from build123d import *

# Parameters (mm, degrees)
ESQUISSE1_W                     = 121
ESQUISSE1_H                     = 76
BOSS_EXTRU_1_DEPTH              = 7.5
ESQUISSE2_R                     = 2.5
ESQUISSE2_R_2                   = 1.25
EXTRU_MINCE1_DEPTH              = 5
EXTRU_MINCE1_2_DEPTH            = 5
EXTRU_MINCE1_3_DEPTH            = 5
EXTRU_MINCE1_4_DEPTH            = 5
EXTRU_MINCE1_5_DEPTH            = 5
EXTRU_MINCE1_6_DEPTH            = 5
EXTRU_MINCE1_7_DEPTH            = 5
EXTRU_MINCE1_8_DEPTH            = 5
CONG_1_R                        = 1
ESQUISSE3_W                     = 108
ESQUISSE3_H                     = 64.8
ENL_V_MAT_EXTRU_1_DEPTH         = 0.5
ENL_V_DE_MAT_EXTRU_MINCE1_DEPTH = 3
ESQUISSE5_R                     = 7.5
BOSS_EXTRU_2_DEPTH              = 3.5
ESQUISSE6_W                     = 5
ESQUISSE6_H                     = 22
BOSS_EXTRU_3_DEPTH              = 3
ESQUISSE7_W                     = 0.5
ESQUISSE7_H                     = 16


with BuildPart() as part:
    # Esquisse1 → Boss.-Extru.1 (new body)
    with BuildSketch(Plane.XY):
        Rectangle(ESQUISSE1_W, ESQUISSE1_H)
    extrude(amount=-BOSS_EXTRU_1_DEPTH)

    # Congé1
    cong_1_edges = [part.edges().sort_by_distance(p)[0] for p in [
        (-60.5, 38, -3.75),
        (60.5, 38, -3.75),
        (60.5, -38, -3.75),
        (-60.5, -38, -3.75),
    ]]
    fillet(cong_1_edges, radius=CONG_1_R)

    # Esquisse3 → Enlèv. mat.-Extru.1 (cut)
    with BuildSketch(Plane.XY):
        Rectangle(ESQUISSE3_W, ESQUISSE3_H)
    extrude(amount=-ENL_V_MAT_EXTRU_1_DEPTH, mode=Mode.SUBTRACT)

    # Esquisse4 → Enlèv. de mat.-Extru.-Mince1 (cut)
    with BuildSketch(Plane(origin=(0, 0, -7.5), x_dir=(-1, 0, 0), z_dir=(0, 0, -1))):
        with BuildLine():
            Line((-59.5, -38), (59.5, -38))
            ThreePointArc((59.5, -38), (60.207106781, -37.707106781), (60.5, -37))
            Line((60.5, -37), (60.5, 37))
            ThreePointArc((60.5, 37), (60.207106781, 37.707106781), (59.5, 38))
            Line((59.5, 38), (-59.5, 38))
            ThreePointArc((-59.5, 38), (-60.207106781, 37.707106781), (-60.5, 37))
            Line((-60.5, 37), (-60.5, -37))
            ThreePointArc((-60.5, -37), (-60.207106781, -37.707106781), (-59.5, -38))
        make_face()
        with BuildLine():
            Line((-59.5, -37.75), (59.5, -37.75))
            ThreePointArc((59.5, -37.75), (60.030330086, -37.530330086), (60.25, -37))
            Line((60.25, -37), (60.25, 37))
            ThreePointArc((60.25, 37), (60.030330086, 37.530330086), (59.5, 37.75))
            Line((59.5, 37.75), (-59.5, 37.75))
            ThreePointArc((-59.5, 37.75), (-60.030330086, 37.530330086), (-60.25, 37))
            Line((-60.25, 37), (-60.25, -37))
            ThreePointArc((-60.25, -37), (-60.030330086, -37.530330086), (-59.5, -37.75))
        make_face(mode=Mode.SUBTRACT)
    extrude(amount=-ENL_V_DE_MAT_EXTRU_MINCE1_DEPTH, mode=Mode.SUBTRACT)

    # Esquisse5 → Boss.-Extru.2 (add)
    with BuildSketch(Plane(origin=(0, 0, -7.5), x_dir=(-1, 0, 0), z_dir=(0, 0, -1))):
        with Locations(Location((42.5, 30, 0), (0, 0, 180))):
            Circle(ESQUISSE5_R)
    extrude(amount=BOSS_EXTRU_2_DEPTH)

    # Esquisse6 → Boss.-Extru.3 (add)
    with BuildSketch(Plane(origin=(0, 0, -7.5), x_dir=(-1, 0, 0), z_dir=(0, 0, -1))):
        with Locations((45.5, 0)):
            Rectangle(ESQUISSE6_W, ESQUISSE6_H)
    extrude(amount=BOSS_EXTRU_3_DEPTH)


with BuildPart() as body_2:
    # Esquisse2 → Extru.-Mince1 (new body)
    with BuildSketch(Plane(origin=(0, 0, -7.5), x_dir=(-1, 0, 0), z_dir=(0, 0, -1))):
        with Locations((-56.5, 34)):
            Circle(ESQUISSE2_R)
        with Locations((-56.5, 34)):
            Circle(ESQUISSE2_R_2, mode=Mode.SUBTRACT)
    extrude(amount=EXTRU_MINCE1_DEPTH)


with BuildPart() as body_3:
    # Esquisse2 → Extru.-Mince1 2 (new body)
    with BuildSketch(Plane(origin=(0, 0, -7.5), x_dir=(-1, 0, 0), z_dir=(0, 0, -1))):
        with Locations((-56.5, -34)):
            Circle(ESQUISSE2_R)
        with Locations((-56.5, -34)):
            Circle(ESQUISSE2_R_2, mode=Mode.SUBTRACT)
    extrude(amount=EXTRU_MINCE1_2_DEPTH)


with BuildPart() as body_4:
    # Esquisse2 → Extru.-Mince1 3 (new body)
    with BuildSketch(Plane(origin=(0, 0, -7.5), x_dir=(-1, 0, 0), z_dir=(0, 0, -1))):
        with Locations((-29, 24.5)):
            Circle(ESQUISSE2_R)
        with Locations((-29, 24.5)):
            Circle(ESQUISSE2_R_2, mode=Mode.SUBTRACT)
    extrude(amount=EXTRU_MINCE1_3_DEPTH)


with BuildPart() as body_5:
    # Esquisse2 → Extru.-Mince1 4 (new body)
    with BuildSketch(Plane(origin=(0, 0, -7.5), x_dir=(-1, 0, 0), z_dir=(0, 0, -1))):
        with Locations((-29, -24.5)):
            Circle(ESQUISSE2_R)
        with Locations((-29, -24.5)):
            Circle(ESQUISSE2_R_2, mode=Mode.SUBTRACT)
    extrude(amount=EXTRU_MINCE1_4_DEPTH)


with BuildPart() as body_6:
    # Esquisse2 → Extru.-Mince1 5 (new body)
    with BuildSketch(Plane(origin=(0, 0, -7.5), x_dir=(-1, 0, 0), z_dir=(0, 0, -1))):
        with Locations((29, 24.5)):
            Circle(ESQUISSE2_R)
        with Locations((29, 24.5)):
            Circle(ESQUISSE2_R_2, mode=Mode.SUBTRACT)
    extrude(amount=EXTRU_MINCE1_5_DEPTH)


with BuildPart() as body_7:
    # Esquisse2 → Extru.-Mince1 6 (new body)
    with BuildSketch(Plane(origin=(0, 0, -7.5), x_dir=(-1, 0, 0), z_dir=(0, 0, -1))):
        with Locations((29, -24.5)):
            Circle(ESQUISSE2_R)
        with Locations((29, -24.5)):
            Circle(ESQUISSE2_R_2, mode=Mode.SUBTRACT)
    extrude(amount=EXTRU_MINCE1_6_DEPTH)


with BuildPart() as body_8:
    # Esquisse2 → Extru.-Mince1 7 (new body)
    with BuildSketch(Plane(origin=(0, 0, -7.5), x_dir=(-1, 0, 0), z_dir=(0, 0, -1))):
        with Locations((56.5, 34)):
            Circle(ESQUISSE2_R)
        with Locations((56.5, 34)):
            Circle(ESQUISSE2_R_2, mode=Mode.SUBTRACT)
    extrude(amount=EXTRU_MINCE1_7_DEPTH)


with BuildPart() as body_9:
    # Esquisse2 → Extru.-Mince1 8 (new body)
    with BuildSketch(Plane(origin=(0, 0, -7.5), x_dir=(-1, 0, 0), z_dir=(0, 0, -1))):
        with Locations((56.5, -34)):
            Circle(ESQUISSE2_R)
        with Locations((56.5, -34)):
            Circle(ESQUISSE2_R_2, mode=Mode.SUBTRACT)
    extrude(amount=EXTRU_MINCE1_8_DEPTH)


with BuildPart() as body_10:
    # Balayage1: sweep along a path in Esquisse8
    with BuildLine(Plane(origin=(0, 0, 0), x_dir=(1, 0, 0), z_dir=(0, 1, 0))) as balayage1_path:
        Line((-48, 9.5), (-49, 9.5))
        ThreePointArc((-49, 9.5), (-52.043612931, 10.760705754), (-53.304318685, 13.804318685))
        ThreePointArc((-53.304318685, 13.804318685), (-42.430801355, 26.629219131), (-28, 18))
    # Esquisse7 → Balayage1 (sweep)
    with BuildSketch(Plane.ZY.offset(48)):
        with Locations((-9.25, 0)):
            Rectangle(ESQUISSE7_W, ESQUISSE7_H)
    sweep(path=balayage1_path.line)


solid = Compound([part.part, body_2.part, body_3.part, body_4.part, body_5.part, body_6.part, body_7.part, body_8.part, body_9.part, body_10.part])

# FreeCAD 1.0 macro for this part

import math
import FreeCAD as App
import Part
import Sketcher


def edges_at(feature, points):
    """Names of the edges that pass closest to the given points."""
    edges = feature.Shape.Edges
    near = lambda p: min(range(len(edges)), key=lambda i: edges[i].distToShape(Part.Vertex(*p))[0])
    return sorted({f"Edge{near(p) + 1}" for p in points})

doc = App.newDocument("Part")
body = doc.addObject("PartDesign::Body", "Body")

sketch1 = doc.addObject("Sketcher::SketchObject", "Sketch")
body.addObject(sketch1)
sketch1.AttachmentSupport = (doc.XY_Plane, [""])
sketch1.MapMode = "FlatFace"
sketch1.addGeometry([
    Part.LineSegment(App.Vector(-60, 38, 0), App.Vector(-60, -38, 0)),
    Part.LineSegment(App.Vector(-60, -38, 0), App.Vector(60, -38, 0)),
    Part.LineSegment(App.Vector(60, -38, 0), App.Vector(60, 38, 0)),
    Part.LineSegment(App.Vector(60, 38, 0), App.Vector(-60, 38, 0)),
], False)
sketch1.addConstraint([
    Sketcher.Constraint("Coincident", 0, 2, 1, 1),
    Sketcher.Constraint("Coincident", 1, 2, 2, 1),
    Sketcher.Constraint("Coincident", 2, 2, 3, 1),
    Sketcher.Constraint("Coincident", 3, 2, 0, 1),
    Sketcher.Constraint("Vertical", 0),
    Sketcher.Constraint("Horizontal", 1),
    Sketcher.Constraint("Vertical", 2),
    Sketcher.Constraint("Horizontal", 3),
    Sketcher.Constraint("Symmetric", 0, 2, 2, 2, -1, 1),
    Sketcher.Constraint("DistanceX", 1, 1, 1, 2, 121.0),
    Sketcher.Constraint("DistanceY", 0, 2, 0, 1, 76.0),
])
pad1 = doc.addObject("PartDesign::Pad", "Pad")
body.addObject(pad1)
pad1.Profile = sketch1
pad1.Length = 7.5
pad1.Reversed = True
doc.recompute()

fillet = doc.addObject("PartDesign::Fillet", "Fillet")
body.addObject(fillet)
fillet.Base = (pad1, edges_at(pad1, [
    (-60.5, 38, -3.75),
    (60.5, 38, -3.75),
    (60.5, -38, -3.75),
    (-60.5, -38, -3.75),
]))
fillet.Radius = 1

sketch2 = doc.addObject("Sketcher::SketchObject", "Sketch001")
body.addObject(sketch2)
sketch2.AttachmentSupport = (doc.XY_Plane, [""])
sketch2.MapMode = "FlatFace"
sketch2.addGeometry([
    Part.LineSegment(App.Vector(-54, 32, 0), App.Vector(-54, -32, 0)),
    Part.LineSegment(App.Vector(-54, -32, 0), App.Vector(54, -32, 0)),
    Part.LineSegment(App.Vector(54, -32, 0), App.Vector(54, 32, 0)),
    Part.LineSegment(App.Vector(54, 32, 0), App.Vector(-54, 32, 0)),
], False)
sketch2.addConstraint([
    Sketcher.Constraint("Coincident", 0, 2, 1, 1),
    Sketcher.Constraint("Coincident", 1, 2, 2, 1),
    Sketcher.Constraint("Coincident", 2, 2, 3, 1),
    Sketcher.Constraint("Coincident", 3, 2, 0, 1),
    Sketcher.Constraint("Vertical", 0),
    Sketcher.Constraint("Horizontal", 1),
    Sketcher.Constraint("Vertical", 2),
    Sketcher.Constraint("Horizontal", 3),
    Sketcher.Constraint("Symmetric", 0, 2, 2, 2, -1, 1),
    Sketcher.Constraint("DistanceX", 1, 1, 1, 2, 108.0),
    Sketcher.Constraint("DistanceY", 0, 2, 0, 1, 64.8),
])
pocket1 = doc.addObject("PartDesign::Pocket", "Pocket")
body.addObject(pocket1)
pocket1.Profile = sketch2
pocket1.Length = 0.5

sketch3 = doc.addObject("Sketcher::SketchObject", "Sketch002")
body.addObject(sketch3)
sketch3.AttachmentSupport = (doc.XY_Plane, [""])
sketch3.MapMode = "FlatFace"
sketch3.AttachmentOffset = App.Placement(App.Vector(0, 0, -7.5), App.Rotation())
sketch3.addGeometry([
    Part.LineSegment(App.Vector(59.5, -38, 0), App.Vector(-59.5, -38, 0)),
    Part.ArcOfCircle(Part.Circle(App.Vector(-59.5, -37, 0), App.Vector(0, 0, 1), 1), math.radians(-180), math.radians(-90)),
    Part.LineSegment(App.Vector(-60.5, -37, 0), App.Vector(-60.5, 37, 0)),
    Part.ArcOfCircle(Part.Circle(App.Vector(-59.5, 37, 0), App.Vector(0, 0, 1), 1), math.radians(90), math.radians(180)),
    Part.LineSegment(App.Vector(-59.5, 38, 0), App.Vector(59.5, 38, 0)),
    Part.ArcOfCircle(Part.Circle(App.Vector(59.5, 37, 0), App.Vector(0, 0, 1), 1), math.radians(0), math.radians(90)),
    Part.LineSegment(App.Vector(60.5, 37, 0), App.Vector(60.5, -37, 0)),
    Part.ArcOfCircle(Part.Circle(App.Vector(59.5, -37, 0), App.Vector(0, 0, 1), 1), math.radians(-90), math.radians(0)),
    Part.LineSegment(App.Vector(-59.5, -37.8, 0), App.Vector(59.5, -37.8, 0)),
    Part.ArcOfCircle(Part.Circle(App.Vector(59.5, -37, 0), App.Vector(0, 0, 1), 0.8), math.radians(-90), math.radians(0)),
    Part.LineSegment(App.Vector(60.2, -37, 0), App.Vector(60.2, 37, 0)),
    Part.ArcOfCircle(Part.Circle(App.Vector(59.5, 37, 0), App.Vector(0, 0, 1), 0.8), math.radians(0), math.radians(90)),
    Part.LineSegment(App.Vector(59.5, 37.8, 0), App.Vector(-59.5, 37.8, 0)),
    Part.ArcOfCircle(Part.Circle(App.Vector(-59.5, 37, 0), App.Vector(0, 0, 1), 0.8), math.radians(90), math.radians(180)),
    Part.LineSegment(App.Vector(-60.2, 37, 0), App.Vector(-60.2, -37, 0)),
    Part.ArcOfCircle(Part.Circle(App.Vector(-59.5, -37, 0), App.Vector(0, 0, 1), 0.8), math.radians(180), math.radians(270)),
], False)
sketch3.addConstraint([
    Sketcher.Constraint("Tangent", 0, 2, 1, 2),
    Sketcher.Constraint("Tangent", 1, 1, 2, 1),
    Sketcher.Constraint("Tangent", 2, 2, 3, 2),
    Sketcher.Constraint("Tangent", 3, 1, 4, 1),
    Sketcher.Constraint("Tangent", 4, 2, 5, 2),
    Sketcher.Constraint("Tangent", 5, 1, 6, 1),
    Sketcher.Constraint("Tangent", 6, 2, 7, 2),
    Sketcher.Constraint("Tangent", 7, 1, 0, 1),
    Sketcher.Constraint("Tangent", 8, 2, 9, 1),
    Sketcher.Constraint("Tangent", 9, 2, 10, 1),
    Sketcher.Constraint("Tangent", 10, 2, 11, 1),
    Sketcher.Constraint("Tangent", 11, 2, 12, 1),
    Sketcher.Constraint("Tangent", 12, 2, 13, 1),
    Sketcher.Constraint("Tangent", 13, 2, 14, 1),
    Sketcher.Constraint("Tangent", 14, 2, 15, 1),
    Sketcher.Constraint("Tangent", 15, 2, 8, 1),
    Sketcher.Constraint("Horizontal", 0),
    Sketcher.Constraint("Vertical", 2),
    Sketcher.Constraint("Horizontal", 4),
    Sketcher.Constraint("Vertical", 6),
    Sketcher.Constraint("Horizontal", 8),
    Sketcher.Constraint("Vertical", 10),
    Sketcher.Constraint("Horizontal", 12),
    Sketcher.Constraint("Vertical", 14),
    Sketcher.Constraint("Coincident", 9, 3, 7, 3),
    Sketcher.Constraint("Coincident", 11, 3, 5, 3),
    Sketcher.Constraint("Coincident", 13, 3, 3, 3),
    Sketcher.Constraint("Equal", 1, 3),
    Sketcher.Constraint("Equal", 3, 5),
    Sketcher.Constraint("Equal", 5, 7),
    Sketcher.Constraint("Equal", 13, 15),
    Sketcher.Constraint("Symmetric", 1, 3, 5, 3, -1, 1),
    Sketcher.Constraint("Radius", 1, 1.0),
    Sketcher.Constraint("DistanceX", 0, 2, 0, 1, 119.0),
    Sketcher.Constraint("DistanceY", 2, 1, 2, 2, 74.0),
    Sketcher.Constraint("Radius", 9, 0.75),
])
pocket2 = doc.addObject("PartDesign::Pocket", "Pocket001")
body.addObject(pocket2)
pocket2.Profile = sketch3
pocket2.Length = 3
pocket2.Reversed = True

sketch4 = doc.addObject("Sketcher::SketchObject", "Sketch003")
body.addObject(sketch4)
sketch4.AttachmentSupport = (doc.XY_Plane, [""])
sketch4.MapMode = "FlatFace"
sketch4.AttachmentOffset = App.Placement(App.Vector(0, 0, -7.5), App.Rotation())
sketch4.addGeometry(Part.Circle(App.Vector(-42, 30, 0), App.Vector(0, 0, 1), 8), False)
sketch4.addConstraint([
    Sketcher.Constraint("Diameter", 0, 15.0),
    Sketcher.Constraint("DistanceY", -1, 1, 0, 3, 30.0),
    Sketcher.Constraint("DistanceX", 0, 3, -1, 1, 42.5),
])
pad2 = doc.addObject("PartDesign::Pad", "Pad001")
body.addObject(pad2)
pad2.Profile = sketch4
pad2.Length = 3.5
pad2.Reversed = True

sketch5 = doc.addObject("Sketcher::SketchObject", "Sketch004")
body.addObject(sketch5)
sketch5.AttachmentSupport = (doc.XY_Plane, [""])
sketch5.MapMode = "FlatFace"
sketch5.AttachmentOffset = App.Placement(App.Vector(0, 0, -7.5), App.Rotation())
sketch5.addGeometry([
    Part.LineSegment(App.Vector(-43, 11, 0), App.Vector(-43, -11, 0)),
    Part.LineSegment(App.Vector(-43, -11, 0), App.Vector(-48, -11, 0)),
    Part.LineSegment(App.Vector(-48, -11, 0), App.Vector(-48, 11, 0)),
    Part.LineSegment(App.Vector(-48, 11, 0), App.Vector(-43, 11, 0)),
], False)
sketch5.addConstraint([
    Sketcher.Constraint("Coincident", 0, 2, 1, 1),
    Sketcher.Constraint("Coincident", 1, 2, 2, 1),
    Sketcher.Constraint("Coincident", 2, 2, 3, 1),
    Sketcher.Constraint("Coincident", 3, 2, 0, 1),
    Sketcher.Constraint("Vertical", 0),
    Sketcher.Constraint("Horizontal", 1),
    Sketcher.Constraint("Vertical", 2),
    Sketcher.Constraint("Horizontal", 3),
    Sketcher.Constraint("DistanceX", 1, 2, 1, 1, 5.0),
    Sketcher.Constraint("DistanceY", 0, 2, 0, 1, 22.0),
    Sketcher.Constraint("DistanceX", 0, 2, -1, 1, 43.0),
    Sketcher.Constraint("DistanceY", 0, 2, -1, 1, 11.0),
])
pad3 = doc.addObject("PartDesign::Pad", "Pad002")
body.addObject(pad3)
pad3.Profile = sketch5
pad3.Length = 3
pad3.Reversed = True
body2 = doc.addObject("PartDesign::Body", "Body001")

sketch6 = doc.addObject("Sketcher::SketchObject", "Sketch005")
body2.addObject(sketch6)
sketch6.AttachmentSupport = (doc.getObject("XY_Plane001"), [""])
sketch6.MapMode = "FlatFace"
sketch6.AttachmentOffset = App.Placement(App.Vector(0, 0, -7.5), App.Rotation())
sketch6.addGeometry([
    Part.Circle(App.Vector(56.5, 34, 0), App.Vector(0, 0, 1), 2.5),
    Part.Circle(App.Vector(56.5, 34, 0), App.Vector(0, 0, 1), 1.2),
], False)
sketch6.addConstraint([
    Sketcher.Constraint("Coincident", 1, 3, 0, 3),
    Sketcher.Constraint("Diameter", 0, 5.0),
    Sketcher.Constraint("Diameter", 1, 2.5),
    Sketcher.Constraint("DistanceY", -1, 1, 0, 3, 34.0),
    Sketcher.Constraint("DistanceX", -1, 1, 0, 3, 56.5),
])
pad4 = doc.addObject("PartDesign::Pad", "Pad003")
body2.addObject(pad4)
pad4.Profile = sketch6
pad4.Length = 5
pad4.Reversed = True
body3 = doc.addObject("PartDesign::Body", "Body002")

sketch7 = doc.addObject("Sketcher::SketchObject", "Sketch006")
body3.addObject(sketch7)
sketch7.AttachmentSupport = (doc.getObject("XY_Plane002"), [""])
sketch7.MapMode = "FlatFace"
sketch7.AttachmentOffset = App.Placement(App.Vector(0, 0, -7.5), App.Rotation())
sketch7.addGeometry([
    Part.Circle(App.Vector(56.5, -34, 0), App.Vector(0, 0, 1), 2.5),
    Part.Circle(App.Vector(56.5, -34, 0), App.Vector(0, 0, 1), 1.2),
], False)
sketch7.addConstraint([
    Sketcher.Constraint("Coincident", 1, 3, 0, 3),
    Sketcher.Constraint("Diameter", 0, 5.0),
    Sketcher.Constraint("Diameter", 1, 2.5),
    Sketcher.Constraint("DistanceY", 0, 3, -1, 1, 34.0),
    Sketcher.Constraint("DistanceX", -1, 1, 0, 3, 56.5),
])
pad5 = doc.addObject("PartDesign::Pad", "Pad004")
body3.addObject(pad5)
pad5.Profile = sketch7
pad5.Length = 5
pad5.Reversed = True
body4 = doc.addObject("PartDesign::Body", "Body003")

sketch8 = doc.addObject("Sketcher::SketchObject", "Sketch007")
body4.addObject(sketch8)
sketch8.AttachmentSupport = (doc.getObject("XY_Plane003"), [""])
sketch8.MapMode = "FlatFace"
sketch8.AttachmentOffset = App.Placement(App.Vector(0, 0, -7.5), App.Rotation())
sketch8.addGeometry([
    Part.Circle(App.Vector(29, 24.5, 0), App.Vector(0, 0, 1), 2.5),
    Part.Circle(App.Vector(29, 24.5, 0), App.Vector(0, 0, 1), 1.2),
], False)
sketch8.addConstraint([
    Sketcher.Constraint("Coincident", 1, 3, 0, 3),
    Sketcher.Constraint("Diameter", 0, 5.0),
    Sketcher.Constraint("Diameter", 1, 2.5),
    Sketcher.Constraint("DistanceX", -1, 1, 0, 3, 29.0),
    Sketcher.Constraint("DistanceY", -1, 1, 0, 3, 24.5),
])
pad6 = doc.addObject("PartDesign::Pad", "Pad005")
body4.addObject(pad6)
pad6.Profile = sketch8
pad6.Length = 5
pad6.Reversed = True
body5 = doc.addObject("PartDesign::Body", "Body004")

sketch9 = doc.addObject("Sketcher::SketchObject", "Sketch008")
body5.addObject(sketch9)
sketch9.AttachmentSupport = (doc.getObject("XY_Plane004"), [""])
sketch9.MapMode = "FlatFace"
sketch9.AttachmentOffset = App.Placement(App.Vector(0, 0, -7.5), App.Rotation())
sketch9.addGeometry([
    Part.Circle(App.Vector(29, -24.5, 0), App.Vector(0, 0, 1), 2.5),
    Part.Circle(App.Vector(29, -24.5, 0), App.Vector(0, 0, 1), 1.2),
], False)
sketch9.addConstraint([
    Sketcher.Constraint("Coincident", 1, 3, 0, 3),
    Sketcher.Constraint("Diameter", 0, 5.0),
    Sketcher.Constraint("Diameter", 1, 2.5),
    Sketcher.Constraint("DistanceX", -1, 1, 0, 3, 29.0),
    Sketcher.Constraint("DistanceY", 0, 3, -1, 1, 24.5),
])
pad7 = doc.addObject("PartDesign::Pad", "Pad006")
body5.addObject(pad7)
pad7.Profile = sketch9
pad7.Length = 5
pad7.Reversed = True
body6 = doc.addObject("PartDesign::Body", "Body005")

sketch10 = doc.addObject("Sketcher::SketchObject", "Sketch009")
body6.addObject(sketch10)
sketch10.AttachmentSupport = (doc.getObject("XY_Plane005"), [""])
sketch10.MapMode = "FlatFace"
sketch10.AttachmentOffset = App.Placement(App.Vector(0, 0, -7.5), App.Rotation())
sketch10.addGeometry([
    Part.Circle(App.Vector(-29, 24.5, 0), App.Vector(0, 0, 1), 2.5),
    Part.Circle(App.Vector(-29, 24.5, 0), App.Vector(0, 0, 1), 1.2),
], False)
sketch10.addConstraint([
    Sketcher.Constraint("Coincident", 1, 3, 0, 3),
    Sketcher.Constraint("Diameter", 0, 5.0),
    Sketcher.Constraint("Diameter", 1, 2.5),
    Sketcher.Constraint("DistanceX", 0, 3, -1, 1, 29.0),
    Sketcher.Constraint("DistanceY", -1, 1, 0, 3, 24.5),
])
pad8 = doc.addObject("PartDesign::Pad", "Pad007")
body6.addObject(pad8)
pad8.Profile = sketch10
pad8.Length = 5
pad8.Reversed = True
body7 = doc.addObject("PartDesign::Body", "Body006")

sketch11 = doc.addObject("Sketcher::SketchObject", "Sketch010")
body7.addObject(sketch11)
sketch11.AttachmentSupport = (doc.getObject("XY_Plane006"), [""])
sketch11.MapMode = "FlatFace"
sketch11.AttachmentOffset = App.Placement(App.Vector(0, 0, -7.5), App.Rotation())
sketch11.addGeometry([
    Part.Circle(App.Vector(-29, -24.5, 0), App.Vector(0, 0, 1), 2.5),
    Part.Circle(App.Vector(-29, -24.5, 0), App.Vector(0, 0, 1), 1.2),
], False)
sketch11.addConstraint([
    Sketcher.Constraint("Coincident", 1, 3, 0, 3),
    Sketcher.Constraint("Diameter", 0, 5.0),
    Sketcher.Constraint("Diameter", 1, 2.5),
    Sketcher.Constraint("DistanceX", 0, 3, -1, 1, 29.0),
    Sketcher.Constraint("DistanceY", 0, 3, -1, 1, 24.5),
])
pad9 = doc.addObject("PartDesign::Pad", "Pad008")
body7.addObject(pad9)
pad9.Profile = sketch11
pad9.Length = 5
pad9.Reversed = True
body8 = doc.addObject("PartDesign::Body", "Body007")

sketch12 = doc.addObject("Sketcher::SketchObject", "Sketch011")
body8.addObject(sketch12)
sketch12.AttachmentSupport = (doc.getObject("XY_Plane007"), [""])
sketch12.MapMode = "FlatFace"
sketch12.AttachmentOffset = App.Placement(App.Vector(0, 0, -7.5), App.Rotation())
sketch12.addGeometry([
    Part.Circle(App.Vector(-56.5, 34, 0), App.Vector(0, 0, 1), 2.5),
    Part.Circle(App.Vector(-56.5, 34, 0), App.Vector(0, 0, 1), 1.2),
], False)
sketch12.addConstraint([
    Sketcher.Constraint("Coincident", 1, 3, 0, 3),
    Sketcher.Constraint("Diameter", 0, 5.0),
    Sketcher.Constraint("Diameter", 1, 2.5),
    Sketcher.Constraint("DistanceY", -1, 1, 0, 3, 34.0),
    Sketcher.Constraint("DistanceX", 0, 3, -1, 1, 56.5),
])
pad10 = doc.addObject("PartDesign::Pad", "Pad009")
body8.addObject(pad10)
pad10.Profile = sketch12
pad10.Length = 5
pad10.Reversed = True
body9 = doc.addObject("PartDesign::Body", "Body008")

sketch13 = doc.addObject("Sketcher::SketchObject", "Sketch012")
body9.addObject(sketch13)
sketch13.AttachmentSupport = (doc.getObject("XY_Plane008"), [""])
sketch13.MapMode = "FlatFace"
sketch13.AttachmentOffset = App.Placement(App.Vector(0, 0, -7.5), App.Rotation())
sketch13.addGeometry([
    Part.Circle(App.Vector(-56.5, -34, 0), App.Vector(0, 0, 1), 2.5),
    Part.Circle(App.Vector(-56.5, -34, 0), App.Vector(0, 0, 1), 1.2),
], False)
sketch13.addConstraint([
    Sketcher.Constraint("Coincident", 1, 3, 0, 3),
    Sketcher.Constraint("Diameter", 0, 5.0),
    Sketcher.Constraint("Diameter", 1, 2.5),
    Sketcher.Constraint("DistanceY", 0, 3, -1, 1, 34.0),
    Sketcher.Constraint("DistanceX", 0, 3, -1, 1, 56.5),
])
pad11 = doc.addObject("PartDesign::Pad", "Pad010")
body9.addObject(pad11)
pad11.Profile = sketch13
pad11.Length = 5
pad11.Reversed = True
body10 = doc.addObject("PartDesign::Body", "Body009")

sketch14 = doc.addObject("Sketcher::SketchObject", "Sketch013")
body10.addObject(sketch14)
sketch14.AttachmentSupport = (doc.getObject("YZ_Plane009"), [""])
sketch14.MapMode = "FlatFace"
sketch14.AttachmentOffset = App.Placement(App.Vector(0, 0, -48), App.Rotation())
sketch14.addGeometry([
    Part.LineSegment(App.Vector(8, -9.5, 0), App.Vector(-8, -9.5, 0)),
    Part.LineSegment(App.Vector(-8, -9.5, 0), App.Vector(-8, -9, 0)),
    Part.LineSegment(App.Vector(-8, -9, 0), App.Vector(8, -9, 0)),
    Part.LineSegment(App.Vector(8, -9, 0), App.Vector(8, -9.5, 0)),
], False)
sketch14.addConstraint([
    Sketcher.Constraint("Coincident", 0, 2, 1, 1),
    Sketcher.Constraint("Coincident", 1, 2, 2, 1),
    Sketcher.Constraint("Coincident", 2, 2, 3, 1),
    Sketcher.Constraint("Coincident", 3, 2, 0, 1),
    Sketcher.Constraint("Horizontal", 0),
    Sketcher.Constraint("Vertical", 1),
    Sketcher.Constraint("Horizontal", 2),
    Sketcher.Constraint("Vertical", 3),
    Sketcher.Constraint("DistanceX", 0, 2, 0, 1, 16.0),
    Sketcher.Constraint("DistanceY", 1, 1, 1, 2, 0.5),
    Sketcher.Constraint("DistanceX", 0, 2, -1, 1, 8.0),
    Sketcher.Constraint("DistanceY", 1, 2, -1, 1, 9.0),
])

sketch15 = doc.addObject("Sketcher::SketchObject", "Sketch014")
body10.addObject(sketch15)
sketch15.AttachmentSupport = (doc.getObject("XZ_Plane009"), [""])
sketch15.MapMode = "FlatFace"
sketch15.addGeometry([
    Part.LineSegment(App.Vector(-48, -9.5, 0), App.Vector(-49, -9.5, 0)),
    Part.ArcOfCircle(Part.Circle(App.Vector(-49, -13.8, 0), App.Vector(0, 0, 1), 4.3), math.radians(90), math.radians(180)),
    Part.ArcOfCircle(Part.Circle(App.Vector(-40.3, -13.8, 0), App.Vector(0, 0, 1), 13), math.radians(180), math.radians(341)),
], False)
sketch15.addConstraint([
    Sketcher.Constraint("Tangent", 0, 2, 1, 1),
    Sketcher.Constraint("Tangent", 1, 2, 2, 1),
    Sketcher.Constraint("Horizontal", 0),
    Sketcher.Constraint("Horizontal", 1, 3, 2, 3),
    Sketcher.Constraint("Radius", 2, 13.0),
    Sketcher.Constraint("DistanceX", 0, 2, 0, 1, 1.0),
    Sketcher.Constraint("DistanceX", 1, 3, -1, 1, 49.0),
    Sketcher.Constraint("DistanceX", 2, 2, -1, 1, 28.0),
    Sketcher.Constraint("DistanceY", 2, 2, -1, 1, 18.0),
    Sketcher.Constraint("DistanceY", 0, 1, -1, 1, 9.5),
])
doc.recompute()

additivepipe = doc.addObject("PartDesign::AdditivePipe", "AdditivePipe")
body10.addObject(additivepipe)
additivepipe.Profile = sketch14
additivepipe.Spine = (sketch15, ["Edge1", "Edge2", "Edge3"])

doc.recompute()
